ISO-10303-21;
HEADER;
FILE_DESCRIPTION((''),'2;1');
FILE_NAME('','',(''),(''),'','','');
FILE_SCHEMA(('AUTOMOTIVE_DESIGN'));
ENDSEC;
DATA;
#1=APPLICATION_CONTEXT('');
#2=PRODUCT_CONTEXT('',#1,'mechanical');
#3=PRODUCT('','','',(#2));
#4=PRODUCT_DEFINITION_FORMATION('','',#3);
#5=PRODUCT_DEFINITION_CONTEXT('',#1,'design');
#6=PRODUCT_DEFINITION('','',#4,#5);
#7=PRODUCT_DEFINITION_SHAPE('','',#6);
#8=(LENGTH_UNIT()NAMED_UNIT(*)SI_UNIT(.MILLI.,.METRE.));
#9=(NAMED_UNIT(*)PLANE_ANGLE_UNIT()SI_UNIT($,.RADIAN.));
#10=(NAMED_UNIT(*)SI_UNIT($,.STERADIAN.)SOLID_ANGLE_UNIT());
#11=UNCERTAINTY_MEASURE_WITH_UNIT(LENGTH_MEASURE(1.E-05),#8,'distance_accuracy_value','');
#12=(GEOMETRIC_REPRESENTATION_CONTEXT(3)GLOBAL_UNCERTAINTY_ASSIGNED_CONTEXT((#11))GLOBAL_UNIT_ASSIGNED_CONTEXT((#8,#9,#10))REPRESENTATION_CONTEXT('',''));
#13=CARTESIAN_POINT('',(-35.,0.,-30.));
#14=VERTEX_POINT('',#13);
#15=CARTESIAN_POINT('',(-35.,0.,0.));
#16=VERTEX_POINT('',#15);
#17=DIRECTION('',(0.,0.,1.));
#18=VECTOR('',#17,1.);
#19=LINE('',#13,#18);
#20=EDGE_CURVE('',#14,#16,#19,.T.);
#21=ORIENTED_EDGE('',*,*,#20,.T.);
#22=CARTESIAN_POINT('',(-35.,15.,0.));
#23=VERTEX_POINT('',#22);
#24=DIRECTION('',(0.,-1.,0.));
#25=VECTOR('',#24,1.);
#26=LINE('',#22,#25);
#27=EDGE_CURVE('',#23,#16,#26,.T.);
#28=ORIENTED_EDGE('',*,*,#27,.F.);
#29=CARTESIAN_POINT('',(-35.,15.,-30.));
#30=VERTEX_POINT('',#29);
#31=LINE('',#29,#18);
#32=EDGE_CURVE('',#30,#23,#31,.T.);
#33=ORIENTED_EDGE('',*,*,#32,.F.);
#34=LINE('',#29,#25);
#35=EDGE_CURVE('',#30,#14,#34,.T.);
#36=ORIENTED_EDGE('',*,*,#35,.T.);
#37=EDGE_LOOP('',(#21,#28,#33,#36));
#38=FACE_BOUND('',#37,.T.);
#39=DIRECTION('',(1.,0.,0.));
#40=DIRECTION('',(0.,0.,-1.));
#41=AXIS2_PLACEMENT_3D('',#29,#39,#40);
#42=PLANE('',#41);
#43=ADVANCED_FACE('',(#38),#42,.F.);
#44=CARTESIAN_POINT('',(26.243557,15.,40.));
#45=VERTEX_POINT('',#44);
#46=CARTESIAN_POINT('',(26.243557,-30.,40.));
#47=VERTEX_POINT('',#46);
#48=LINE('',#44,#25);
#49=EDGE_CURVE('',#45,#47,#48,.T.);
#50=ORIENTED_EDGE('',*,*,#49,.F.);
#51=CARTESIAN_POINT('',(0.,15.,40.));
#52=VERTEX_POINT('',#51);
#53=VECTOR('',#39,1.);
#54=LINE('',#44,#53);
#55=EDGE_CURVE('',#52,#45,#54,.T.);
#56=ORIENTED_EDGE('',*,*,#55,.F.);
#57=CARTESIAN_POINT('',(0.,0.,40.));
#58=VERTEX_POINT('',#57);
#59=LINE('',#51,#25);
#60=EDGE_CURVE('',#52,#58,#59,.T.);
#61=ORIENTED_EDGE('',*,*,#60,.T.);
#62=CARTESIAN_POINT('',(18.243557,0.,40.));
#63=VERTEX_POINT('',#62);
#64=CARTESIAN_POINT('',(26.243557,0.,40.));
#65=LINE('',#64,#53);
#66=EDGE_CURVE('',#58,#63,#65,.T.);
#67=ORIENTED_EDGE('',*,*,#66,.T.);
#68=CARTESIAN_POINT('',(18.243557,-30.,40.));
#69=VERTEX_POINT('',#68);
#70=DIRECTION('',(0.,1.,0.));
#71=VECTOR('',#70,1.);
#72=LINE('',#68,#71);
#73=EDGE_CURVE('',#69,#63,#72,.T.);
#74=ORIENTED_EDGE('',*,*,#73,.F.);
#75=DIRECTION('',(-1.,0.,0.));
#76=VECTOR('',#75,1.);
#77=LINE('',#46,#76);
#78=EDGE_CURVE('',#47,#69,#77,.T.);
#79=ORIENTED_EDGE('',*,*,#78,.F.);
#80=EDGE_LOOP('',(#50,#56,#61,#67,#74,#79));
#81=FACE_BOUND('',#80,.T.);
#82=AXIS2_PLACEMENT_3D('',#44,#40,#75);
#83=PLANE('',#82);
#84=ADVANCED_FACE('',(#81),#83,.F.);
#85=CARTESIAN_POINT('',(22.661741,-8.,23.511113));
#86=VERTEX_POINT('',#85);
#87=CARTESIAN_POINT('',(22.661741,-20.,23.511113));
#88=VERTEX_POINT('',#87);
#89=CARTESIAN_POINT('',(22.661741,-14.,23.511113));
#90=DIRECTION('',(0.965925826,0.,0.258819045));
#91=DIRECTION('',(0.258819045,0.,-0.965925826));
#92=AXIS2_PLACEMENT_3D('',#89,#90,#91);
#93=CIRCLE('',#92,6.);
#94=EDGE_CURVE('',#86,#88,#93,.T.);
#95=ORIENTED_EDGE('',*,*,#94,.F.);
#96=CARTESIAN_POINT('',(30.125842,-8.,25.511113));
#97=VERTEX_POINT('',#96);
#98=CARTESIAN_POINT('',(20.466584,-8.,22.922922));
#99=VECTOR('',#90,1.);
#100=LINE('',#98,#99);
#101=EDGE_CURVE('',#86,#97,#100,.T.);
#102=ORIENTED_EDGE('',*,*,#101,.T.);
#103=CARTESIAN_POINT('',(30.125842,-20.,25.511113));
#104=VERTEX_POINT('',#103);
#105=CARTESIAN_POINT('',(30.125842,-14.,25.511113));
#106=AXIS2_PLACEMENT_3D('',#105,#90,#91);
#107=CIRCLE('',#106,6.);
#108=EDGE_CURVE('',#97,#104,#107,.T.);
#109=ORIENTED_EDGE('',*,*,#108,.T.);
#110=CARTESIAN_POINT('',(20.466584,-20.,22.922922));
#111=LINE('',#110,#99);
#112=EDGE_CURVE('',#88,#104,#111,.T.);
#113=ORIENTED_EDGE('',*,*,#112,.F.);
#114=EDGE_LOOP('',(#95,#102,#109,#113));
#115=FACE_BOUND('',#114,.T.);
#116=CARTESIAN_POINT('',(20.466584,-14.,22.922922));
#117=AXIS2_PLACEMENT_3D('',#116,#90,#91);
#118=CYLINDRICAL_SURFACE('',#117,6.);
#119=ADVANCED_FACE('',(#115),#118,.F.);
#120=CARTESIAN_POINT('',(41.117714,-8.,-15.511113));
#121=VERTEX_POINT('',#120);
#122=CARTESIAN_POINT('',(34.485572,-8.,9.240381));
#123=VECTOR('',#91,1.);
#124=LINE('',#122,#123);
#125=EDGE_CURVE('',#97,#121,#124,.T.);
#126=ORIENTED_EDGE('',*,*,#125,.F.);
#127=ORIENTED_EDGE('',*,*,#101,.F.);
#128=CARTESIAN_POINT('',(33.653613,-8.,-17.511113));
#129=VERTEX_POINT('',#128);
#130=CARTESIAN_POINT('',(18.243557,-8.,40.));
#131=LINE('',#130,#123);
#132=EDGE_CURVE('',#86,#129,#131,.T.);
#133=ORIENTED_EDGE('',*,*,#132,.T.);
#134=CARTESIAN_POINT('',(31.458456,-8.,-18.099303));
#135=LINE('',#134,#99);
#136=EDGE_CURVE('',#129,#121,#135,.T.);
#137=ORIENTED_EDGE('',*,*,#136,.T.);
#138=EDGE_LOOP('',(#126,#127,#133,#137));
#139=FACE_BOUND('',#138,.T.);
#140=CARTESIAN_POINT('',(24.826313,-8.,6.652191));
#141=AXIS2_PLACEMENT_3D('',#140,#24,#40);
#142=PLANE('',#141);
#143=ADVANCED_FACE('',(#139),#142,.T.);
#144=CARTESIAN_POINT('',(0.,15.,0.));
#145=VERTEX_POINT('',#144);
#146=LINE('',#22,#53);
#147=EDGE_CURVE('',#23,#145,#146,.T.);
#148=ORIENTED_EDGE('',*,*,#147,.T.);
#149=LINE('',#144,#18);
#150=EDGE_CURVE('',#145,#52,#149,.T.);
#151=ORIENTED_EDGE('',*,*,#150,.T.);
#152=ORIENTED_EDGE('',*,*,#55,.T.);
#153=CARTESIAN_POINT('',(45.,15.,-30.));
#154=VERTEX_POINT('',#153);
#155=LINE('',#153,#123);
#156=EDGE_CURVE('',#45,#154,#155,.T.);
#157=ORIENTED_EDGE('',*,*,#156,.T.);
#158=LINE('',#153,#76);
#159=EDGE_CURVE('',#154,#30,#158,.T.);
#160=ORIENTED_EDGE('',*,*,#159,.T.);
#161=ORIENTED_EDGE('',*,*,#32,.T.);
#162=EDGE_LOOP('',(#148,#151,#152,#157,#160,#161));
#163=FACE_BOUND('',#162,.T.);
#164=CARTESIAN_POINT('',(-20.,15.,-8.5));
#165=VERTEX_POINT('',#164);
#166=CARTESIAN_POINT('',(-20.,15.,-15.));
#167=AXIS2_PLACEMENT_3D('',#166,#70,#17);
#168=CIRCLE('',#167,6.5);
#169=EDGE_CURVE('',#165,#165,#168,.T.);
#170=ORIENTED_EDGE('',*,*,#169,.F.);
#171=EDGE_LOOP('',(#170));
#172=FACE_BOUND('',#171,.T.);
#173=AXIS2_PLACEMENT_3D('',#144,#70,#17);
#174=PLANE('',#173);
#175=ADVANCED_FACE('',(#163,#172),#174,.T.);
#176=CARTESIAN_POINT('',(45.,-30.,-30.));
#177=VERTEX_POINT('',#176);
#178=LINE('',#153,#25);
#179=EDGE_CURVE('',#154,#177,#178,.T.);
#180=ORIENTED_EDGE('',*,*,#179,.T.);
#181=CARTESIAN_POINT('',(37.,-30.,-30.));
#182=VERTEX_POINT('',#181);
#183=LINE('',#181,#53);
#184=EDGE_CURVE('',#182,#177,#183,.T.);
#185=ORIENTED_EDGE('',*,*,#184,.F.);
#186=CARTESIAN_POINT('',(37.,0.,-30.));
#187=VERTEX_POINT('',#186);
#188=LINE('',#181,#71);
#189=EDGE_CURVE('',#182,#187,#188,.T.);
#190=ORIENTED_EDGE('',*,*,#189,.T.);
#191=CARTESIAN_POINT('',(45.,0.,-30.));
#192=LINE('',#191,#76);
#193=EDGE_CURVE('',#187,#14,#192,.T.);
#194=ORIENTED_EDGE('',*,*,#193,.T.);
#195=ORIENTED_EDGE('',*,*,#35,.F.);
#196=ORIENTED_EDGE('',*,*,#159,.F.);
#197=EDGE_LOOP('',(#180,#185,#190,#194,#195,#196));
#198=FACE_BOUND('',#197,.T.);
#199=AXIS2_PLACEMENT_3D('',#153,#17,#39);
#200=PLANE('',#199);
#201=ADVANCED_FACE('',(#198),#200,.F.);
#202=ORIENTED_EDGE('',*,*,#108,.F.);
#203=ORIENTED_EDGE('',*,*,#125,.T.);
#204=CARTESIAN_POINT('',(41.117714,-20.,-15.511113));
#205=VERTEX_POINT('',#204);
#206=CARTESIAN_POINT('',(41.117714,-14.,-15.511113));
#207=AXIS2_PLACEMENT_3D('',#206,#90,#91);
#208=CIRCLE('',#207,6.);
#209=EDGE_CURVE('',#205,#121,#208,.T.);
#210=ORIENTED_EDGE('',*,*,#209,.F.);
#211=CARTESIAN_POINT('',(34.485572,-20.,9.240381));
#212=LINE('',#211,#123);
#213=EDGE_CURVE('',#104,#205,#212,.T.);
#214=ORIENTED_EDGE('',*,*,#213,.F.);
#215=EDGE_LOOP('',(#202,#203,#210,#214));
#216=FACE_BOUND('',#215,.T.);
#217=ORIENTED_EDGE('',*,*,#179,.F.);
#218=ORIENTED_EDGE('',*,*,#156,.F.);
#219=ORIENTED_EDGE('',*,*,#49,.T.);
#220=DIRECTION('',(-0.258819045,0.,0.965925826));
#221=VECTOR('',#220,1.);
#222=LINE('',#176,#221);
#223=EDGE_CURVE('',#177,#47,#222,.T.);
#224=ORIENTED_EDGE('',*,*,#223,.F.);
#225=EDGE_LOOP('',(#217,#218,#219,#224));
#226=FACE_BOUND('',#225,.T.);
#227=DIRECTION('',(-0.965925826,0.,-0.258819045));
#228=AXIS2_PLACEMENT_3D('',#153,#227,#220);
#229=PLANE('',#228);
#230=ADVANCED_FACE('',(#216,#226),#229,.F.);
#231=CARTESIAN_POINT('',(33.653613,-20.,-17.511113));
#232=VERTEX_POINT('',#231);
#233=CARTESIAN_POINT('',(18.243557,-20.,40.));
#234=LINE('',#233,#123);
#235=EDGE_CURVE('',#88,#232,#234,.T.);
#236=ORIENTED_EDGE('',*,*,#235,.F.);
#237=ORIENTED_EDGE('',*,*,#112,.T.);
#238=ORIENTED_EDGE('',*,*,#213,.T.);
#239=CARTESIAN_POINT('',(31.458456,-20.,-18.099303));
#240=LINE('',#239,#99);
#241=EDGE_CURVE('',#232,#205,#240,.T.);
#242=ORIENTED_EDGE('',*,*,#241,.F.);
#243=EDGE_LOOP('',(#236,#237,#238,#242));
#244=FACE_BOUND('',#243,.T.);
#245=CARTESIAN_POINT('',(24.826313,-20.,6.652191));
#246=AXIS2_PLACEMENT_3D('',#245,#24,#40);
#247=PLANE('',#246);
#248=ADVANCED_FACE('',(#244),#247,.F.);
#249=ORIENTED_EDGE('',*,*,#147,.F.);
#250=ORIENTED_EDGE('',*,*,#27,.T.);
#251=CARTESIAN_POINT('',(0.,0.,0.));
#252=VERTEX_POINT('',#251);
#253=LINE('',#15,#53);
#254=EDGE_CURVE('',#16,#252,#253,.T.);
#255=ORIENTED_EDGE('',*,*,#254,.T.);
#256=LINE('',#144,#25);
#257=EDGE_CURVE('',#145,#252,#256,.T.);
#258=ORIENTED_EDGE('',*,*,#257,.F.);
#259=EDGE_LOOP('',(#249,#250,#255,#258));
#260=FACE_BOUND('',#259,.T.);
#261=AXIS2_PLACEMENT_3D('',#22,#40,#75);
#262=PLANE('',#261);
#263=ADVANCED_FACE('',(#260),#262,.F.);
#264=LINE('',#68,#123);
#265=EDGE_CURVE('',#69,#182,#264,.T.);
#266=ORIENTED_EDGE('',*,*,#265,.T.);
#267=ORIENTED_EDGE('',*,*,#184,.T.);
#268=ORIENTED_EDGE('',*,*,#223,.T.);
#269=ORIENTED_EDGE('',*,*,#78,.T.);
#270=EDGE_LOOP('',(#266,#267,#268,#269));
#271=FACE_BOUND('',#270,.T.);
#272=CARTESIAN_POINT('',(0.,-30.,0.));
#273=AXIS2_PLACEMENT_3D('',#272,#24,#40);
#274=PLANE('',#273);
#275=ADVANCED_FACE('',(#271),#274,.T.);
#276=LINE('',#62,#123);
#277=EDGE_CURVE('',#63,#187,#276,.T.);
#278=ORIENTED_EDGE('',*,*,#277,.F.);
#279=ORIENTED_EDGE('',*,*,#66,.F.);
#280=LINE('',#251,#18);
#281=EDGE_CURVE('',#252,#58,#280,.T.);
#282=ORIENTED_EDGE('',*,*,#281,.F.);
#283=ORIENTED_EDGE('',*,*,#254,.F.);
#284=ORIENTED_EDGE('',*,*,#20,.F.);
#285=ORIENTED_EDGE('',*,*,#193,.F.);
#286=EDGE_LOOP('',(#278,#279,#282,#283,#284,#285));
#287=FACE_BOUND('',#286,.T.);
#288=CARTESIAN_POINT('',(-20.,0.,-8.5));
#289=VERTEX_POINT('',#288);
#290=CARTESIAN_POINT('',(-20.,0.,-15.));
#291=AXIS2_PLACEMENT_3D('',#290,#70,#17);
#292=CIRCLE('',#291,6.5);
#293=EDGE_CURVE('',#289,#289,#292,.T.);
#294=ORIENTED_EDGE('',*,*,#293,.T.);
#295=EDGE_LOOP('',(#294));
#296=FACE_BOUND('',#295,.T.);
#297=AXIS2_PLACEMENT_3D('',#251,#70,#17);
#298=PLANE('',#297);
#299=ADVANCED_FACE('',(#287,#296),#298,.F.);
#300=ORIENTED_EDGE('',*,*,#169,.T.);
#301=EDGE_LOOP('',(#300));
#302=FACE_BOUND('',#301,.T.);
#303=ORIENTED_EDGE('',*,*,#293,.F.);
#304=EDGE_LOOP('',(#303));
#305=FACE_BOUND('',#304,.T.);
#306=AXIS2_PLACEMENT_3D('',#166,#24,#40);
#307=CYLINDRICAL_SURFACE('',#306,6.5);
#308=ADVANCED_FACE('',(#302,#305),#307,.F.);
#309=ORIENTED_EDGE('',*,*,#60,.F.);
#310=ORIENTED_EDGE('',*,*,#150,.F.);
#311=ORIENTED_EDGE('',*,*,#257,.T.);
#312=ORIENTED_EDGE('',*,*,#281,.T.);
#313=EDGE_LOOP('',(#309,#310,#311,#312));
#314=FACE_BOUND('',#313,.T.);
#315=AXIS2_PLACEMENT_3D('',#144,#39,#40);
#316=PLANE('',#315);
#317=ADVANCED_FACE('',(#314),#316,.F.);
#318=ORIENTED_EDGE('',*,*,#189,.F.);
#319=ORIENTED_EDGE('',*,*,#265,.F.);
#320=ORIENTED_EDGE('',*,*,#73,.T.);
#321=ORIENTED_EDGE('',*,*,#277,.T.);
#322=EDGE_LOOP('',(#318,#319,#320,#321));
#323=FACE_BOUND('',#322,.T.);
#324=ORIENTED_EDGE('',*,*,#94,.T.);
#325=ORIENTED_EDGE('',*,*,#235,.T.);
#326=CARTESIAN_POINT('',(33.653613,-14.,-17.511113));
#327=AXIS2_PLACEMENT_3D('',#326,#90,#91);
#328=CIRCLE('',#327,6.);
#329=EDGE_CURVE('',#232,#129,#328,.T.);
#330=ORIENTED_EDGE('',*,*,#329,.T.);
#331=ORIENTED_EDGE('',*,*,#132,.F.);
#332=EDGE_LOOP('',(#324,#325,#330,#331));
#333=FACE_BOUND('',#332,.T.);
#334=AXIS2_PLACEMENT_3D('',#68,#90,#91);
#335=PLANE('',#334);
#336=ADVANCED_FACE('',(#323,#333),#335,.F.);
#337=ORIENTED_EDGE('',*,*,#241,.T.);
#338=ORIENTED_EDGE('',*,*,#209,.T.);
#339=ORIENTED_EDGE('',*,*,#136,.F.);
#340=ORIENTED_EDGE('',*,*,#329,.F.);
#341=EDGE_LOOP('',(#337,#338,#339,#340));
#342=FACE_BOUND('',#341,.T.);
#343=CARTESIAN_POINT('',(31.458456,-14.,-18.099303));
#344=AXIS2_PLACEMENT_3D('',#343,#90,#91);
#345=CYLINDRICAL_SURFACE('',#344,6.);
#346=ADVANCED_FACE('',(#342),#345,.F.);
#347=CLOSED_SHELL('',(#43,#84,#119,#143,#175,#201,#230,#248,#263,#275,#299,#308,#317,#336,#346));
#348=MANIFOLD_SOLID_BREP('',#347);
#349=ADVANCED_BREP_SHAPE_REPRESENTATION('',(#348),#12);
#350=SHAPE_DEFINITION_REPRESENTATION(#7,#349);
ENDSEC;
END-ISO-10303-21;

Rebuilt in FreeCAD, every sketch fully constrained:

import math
import FreeCAD as App
import Part
import Sketcher
Q = App.Units.Quantity

doc = App.newDocument("Part")
params = doc.addObject("Spreadsheet::Sheet", "Params")
for row, (alias, value) in enumerate([
    ("sketch1_diameter", "13 mm"),
    ("sketch1_width", "80 mm"),
    ("sketch1_width2", "35 mm"),
    ("sketch1_height", "30 mm"),
    ("sketch1_height2", "40 mm"),
    ("pad1_length", "15 mm"),
    ("sketch2_width", "8 mm"),
    ("pad2_length", "30 mm"),
    ("sketch3_radius", "6 mm"),
    ("pocket1_length", "10 mm"),
], start=1):
    params.set(f"A{row}", alias)
    params.set(f"B{row}", "=" + value)
    params.setAlias(f"B{row}", alias)

body = doc.addObject("PartDesign::Body", "Body")

# Sketch on XZ plane
sketch1 = body.newObject("Sketcher::SketchObject", "Sketch")
sketch1.AttachmentSupport = (doc.getObject("XZ_Plane"), [""])
sketch1.MapMode = "FlatFace"
sketch1.addGeometry([
    Part.LineSegment(App.Vector(26, 40, 0), App.Vector(45, -30, 0)),  # 0
    Part.LineSegment(App.Vector(45, -30, 0), App.Vector(-35, -30, 0)),  # 1
    Part.LineSegment(App.Vector(-35, -30, 0), App.Vector(-35, 0, 0)),  # 2
    Part.LineSegment(App.Vector(-35, 0, 0), App.Vector(0, 0, 0)),  # 3
    Part.LineSegment(App.Vector(0, 0, 0), App.Vector(0, 40, 0)),  # 4
    Part.LineSegment(App.Vector(0, 40, 0), App.Vector(26, 40, 0)),  # 5
    Part.Circle(App.Vector(-20, -15, 0), App.Vector(0, 0, 1), 6),  # 6
], False)
sketch1.addConstraint([
    Sketcher.Constraint("Coincident", 0, 2, 1, 1),
    Sketcher.Constraint("Coincident", 1, 2, 2, 1),
    Sketcher.Constraint("Coincident", 2, 2, 3, 1),
    Sketcher.Constraint("Coincident", 3, 2, 4, 1),
    Sketcher.Constraint("Coincident", 4, 2, 5, 1),
    Sketcher.Constraint("Coincident", 5, 2, 0, 1),
    Sketcher.Constraint("Horizontal", 1),
    Sketcher.Constraint("Vertical", 2),
    Sketcher.Constraint("Horizontal", 3),
    Sketcher.Constraint("Vertical", 4),
    Sketcher.Constraint("Horizontal", 5),
    Sketcher.Constraint("Coincident", 3, 2, -1, 1),
    Sketcher.Constraint("Diameter", 6, Q("13 mm")),
    Sketcher.Constraint("DistanceX", 1, 2, 1, 1, Q("80 mm")),
    Sketcher.Constraint("DistanceX", 3, 1, 3, 2, Q("35 mm")),
    Sketcher.Constraint("DistanceY", 2, 1, 2, 2, Q("30 mm")),
    Sketcher.Constraint("DistanceY", 4, 1, 4, 2, Q("40 mm")),
    Sketcher.Constraint("Angle", 0, Q("-75 deg")),
    Sketcher.Constraint("DistanceX", 6, 3, -1, 1, Q("20 mm")),
    Sketcher.Constraint("DistanceY", 6, 3, -1, 1, Q("15 mm")),
])
sketch1.setExpression("Constraints[12]", "Params.sketch1_diameter")
sketch1.setExpression("Constraints[13]", "Params.sketch1_width")
sketch1.setExpression("Constraints[14]", "Params.sketch1_width2")
sketch1.setExpression("Constraints[15]", "Params.sketch1_height")
sketch1.setExpression("Constraints[16]", "Params.sketch1_height2")
pad1 = body.newObject("PartDesign::Pad", "Pad")
pad1.Profile = sketch1
pad1.setExpression("Length", "Params.pad1_length")
pad1.Reversed = True

# Sketch on XZ plane
sketch2 = body.newObject("Sketcher::SketchObject", "Sketch001")
sketch2.AttachmentSupport = (doc.getObject("XZ_Plane"), [""])
sketch2.MapMode = "FlatFace"
sketch2.addGeometry([
    Part.LineSegment(App.Vector(18, 40, 0), App.Vector(37, -30, 0)),
    Part.LineSegment(App.Vector(37, -30, 0), App.Vector(45, -30, 0)),
    Part.LineSegment(App.Vector(45, -30, 0), App.Vector(26, 40, 0)),
    Part.LineSegment(App.Vector(26, 40, 0), App.Vector(18, 40, 0)),
], False)
sketch2.addConstraint([
    Sketcher.Constraint("Coincident", 0, 2, 1, 1),
    Sketcher.Constraint("Coincident", 1, 2, 2, 1),
    Sketcher.Constraint("Coincident", 2, 2, 3, 1),
    Sketcher.Constraint("Coincident", 3, 2, 0, 1),
    Sketcher.Constraint("Horizontal", 1),
    Sketcher.Constraint("Horizontal", 3),
    Sketcher.Constraint("Parallel", 0, 2),
    Sketcher.Constraint("DistanceX", 1, 1, 1, 2, Q("8 mm")),
    Sketcher.Constraint("Angle", 0, Q("-75 deg")),
    Sketcher.Constraint("DistanceX", -1, 1, 0, 2, Q("37 mm")),
    Sketcher.Constraint("DistanceY", 0, 2, -1, 1, Q("30 mm")),
    Sketcher.Constraint("DistanceY", -1, 1, 2, 2, Q("40 mm")),
])
sketch2.setExpression("Constraints[7]", "Params.sketch2_width")
pad2 = body.newObject("PartDesign::Pad", "Pad001")
pad2.Profile = sketch2
pad2.setExpression("Length", "Params.pad2_length")

# Sketch on an angled plane
sketch3 = body.newObject("Sketcher::SketchObject", "Sketch002")
sketch3.Placement = App.Placement(App.Vector(34.485572, 0, 9.240381), App.Rotation(App.Vector(0.258819045, 0, -0.965925826), App.Vector(0, 0.999999999, 0), App.Vector(0.965925826, 0, 0.258819045), "ZXY"))
sketch3.addGeometry([
    Part.LineSegment(App.Vector(26, -8, 0), App.Vector(-17, -8, 0)),
    Part.ArcOfCircle(Part.Circle(App.Vector(-17, -14, 0), App.Vector(0, 0, 1), 6), math.radians(90), math.radians(270)),
    Part.LineSegment(App.Vector(-17, -20, 0), App.Vector(26, -20, 0)),
    Part.ArcOfCircle(Part.Circle(App.Vector(26, -14, 0), App.Vector(0, 0, 1), 6), math.radians(-90), math.radians(90)),
], False)
sketch3.addConstraint([
    Sketcher.Constraint("Tangent", 0, 2, 1, 1),
    Sketcher.Constraint("Tangent", 1, 2, 2, 1),
    Sketcher.Constraint("Tangent", 2, 2, 3, 1),
    Sketcher.Constraint("Tangent", 3, 2, 0, 1),
    Sketcher.Constraint("Horizontal", 0),
    Sketcher.Constraint("Horizontal", 2),
    Sketcher.Constraint("Radius", 1, Q("6 mm")),
    Sketcher.Constraint("DistanceY", 1, 3, -1, 1, Q("14 mm")),
    Sketcher.Constraint("DistanceX", 1, 3, -1, 1, Q("16.844701 mm")),
    Sketcher.Constraint("DistanceX", 0, 2, 0, 1, Q("42.469333 mm")),
])
sketch3.setExpression("Constraints[6]", "Params.sketch3_radius")
pocket1 = body.newObject("PartDesign::Pocket", "Pocket")
pocket1.Profile = sketch3
pocket1.setExpression("Length", "Params.pocket1_length")

doc.recompute()
